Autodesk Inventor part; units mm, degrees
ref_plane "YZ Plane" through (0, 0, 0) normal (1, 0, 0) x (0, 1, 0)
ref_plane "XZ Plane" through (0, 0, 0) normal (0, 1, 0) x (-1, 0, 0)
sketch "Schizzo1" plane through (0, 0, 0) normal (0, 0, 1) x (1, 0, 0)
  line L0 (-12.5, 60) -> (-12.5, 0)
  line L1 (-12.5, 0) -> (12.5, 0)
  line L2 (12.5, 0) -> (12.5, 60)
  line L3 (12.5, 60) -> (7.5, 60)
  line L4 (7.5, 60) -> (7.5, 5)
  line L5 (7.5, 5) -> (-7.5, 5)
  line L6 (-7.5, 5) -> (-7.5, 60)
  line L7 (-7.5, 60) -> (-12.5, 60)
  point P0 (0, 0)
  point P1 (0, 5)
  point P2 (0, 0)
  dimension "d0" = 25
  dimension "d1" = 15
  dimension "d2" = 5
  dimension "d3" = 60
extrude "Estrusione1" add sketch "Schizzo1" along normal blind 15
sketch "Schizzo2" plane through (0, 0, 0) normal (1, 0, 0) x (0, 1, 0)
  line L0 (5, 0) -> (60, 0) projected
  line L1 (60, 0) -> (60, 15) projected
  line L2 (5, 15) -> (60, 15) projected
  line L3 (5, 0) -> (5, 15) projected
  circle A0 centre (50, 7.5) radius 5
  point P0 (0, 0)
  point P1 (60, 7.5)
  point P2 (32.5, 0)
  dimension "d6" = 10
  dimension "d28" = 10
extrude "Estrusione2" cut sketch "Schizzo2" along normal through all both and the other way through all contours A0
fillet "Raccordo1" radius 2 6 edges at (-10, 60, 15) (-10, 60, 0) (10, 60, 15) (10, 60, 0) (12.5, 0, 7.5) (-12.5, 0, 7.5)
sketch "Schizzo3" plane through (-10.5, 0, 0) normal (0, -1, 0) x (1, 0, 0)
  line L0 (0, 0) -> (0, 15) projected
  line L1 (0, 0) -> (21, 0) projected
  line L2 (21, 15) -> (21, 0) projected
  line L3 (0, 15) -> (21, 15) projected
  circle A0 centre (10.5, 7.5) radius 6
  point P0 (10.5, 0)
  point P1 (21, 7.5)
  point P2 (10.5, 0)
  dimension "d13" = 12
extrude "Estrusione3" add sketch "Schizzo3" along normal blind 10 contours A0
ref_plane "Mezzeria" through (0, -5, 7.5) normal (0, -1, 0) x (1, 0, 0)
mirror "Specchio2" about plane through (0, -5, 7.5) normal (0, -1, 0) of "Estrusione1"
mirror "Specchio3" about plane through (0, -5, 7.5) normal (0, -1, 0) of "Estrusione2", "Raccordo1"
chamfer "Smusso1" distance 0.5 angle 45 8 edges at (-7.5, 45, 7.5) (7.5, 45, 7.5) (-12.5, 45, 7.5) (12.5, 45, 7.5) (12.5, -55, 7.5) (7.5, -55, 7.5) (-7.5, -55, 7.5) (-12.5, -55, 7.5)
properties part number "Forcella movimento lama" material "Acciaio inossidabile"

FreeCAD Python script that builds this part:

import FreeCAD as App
import Part
import Sketcher

V = App.Vector
Q = App.Units.Quantity


def edges_at(feature, points):
    """Names of the edges that pass closest to the given points."""
    edges = feature.Shape.Edges
    near = lambda p: min(range(len(edges)), key=lambda i: edges[i].distToShape(Part.Vertex(*p))[0])
    return sorted({f"Edge{near(p) + 1}" for p in points})

doc = App.newDocument("Part")
body = doc.addObject("PartDesign::Body", "Body")

# Sketch on XY plane
sketch1 = doc.addObject("Sketcher::SketchObject", "Sketch")
body.addObject(sketch1)
sketch1.AttachmentSupport = (doc.XY_Plane, [""])
sketch1.MapMode = "FlatFace"
sketch1.addGeometry([
    Part.LineSegment(V(-8, 60, 0), V(-12, 60, 0)),  # 0
    Part.LineSegment(V(-12, 60, 0), V(-12, 0, 0)),  # 1
    Part.LineSegment(V(-12, 0, 0), V(12, 0, 0)),  # 2
    Part.LineSegment(V(12, 0, 0), V(12, 60, 0)),  # 3
    Part.LineSegment(V(12, 60, 0), V(8, 60, 0)),  # 4
    Part.LineSegment(V(8, 60, 0), V(8, 5, 0)),  # 5
    Part.LineSegment(V(8, 5, 0), V(-8, 5, 0)),  # 6
    Part.LineSegment(V(-8, 5, 0), V(-8, 60, 0)),  # 7
], False)
sketch1.addConstraint([
    Sketcher.Constraint("Coincident", 0, 2, 1, 1),
    Sketcher.Constraint("Coincident", 1, 2, 2, 1),
    Sketcher.Constraint("Coincident", 2, 2, 3, 1),
    Sketcher.Constraint("Coincident", 3, 2, 4, 1),
    Sketcher.Constraint("Coincident", 4, 2, 5, 1),
    Sketcher.Constraint("Coincident", 5, 2, 6, 1),
    Sketcher.Constraint("Coincident", 6, 2, 7, 1),
    Sketcher.Constraint("Coincident", 7, 2, 0, 1),
    Sketcher.Constraint("Horizontal", 0),
    Sketcher.Constraint("Vertical", 1),
    Sketcher.Constraint("Horizontal", 2),
    Sketcher.Constraint("Vertical", 3),
    Sketcher.Constraint("Horizontal", 4),
    Sketcher.Constraint("Vertical", 5),
    Sketcher.Constraint("Horizontal", 6),
    Sketcher.Constraint("Vertical", 7),
    Sketcher.Constraint("Symmetric", 1, 2, 2, 2, -1, 1),
    Sketcher.Constraint("Symmetric", 4, 2, 7, 2, -2),
    Sketcher.Constraint("DistanceX", 0, 2, 0, 1, Q("5 mm")),
    Sketcher.Constraint("DistanceX", 2, 1, 2, 2, Q("25 mm")),
    Sketcher.Constraint("DistanceY", 1, 2, 1, 1, Q("60 mm")),
    Sketcher.Constraint("DistanceY", -1, 1, 5, 2, Q("5 mm")),
])
pad1 = doc.addObject("PartDesign::Pad", "Pad")
body.addObject(pad1)
pad1.Profile = sketch1
pad1.Length = 15

# Sketch on YZ plane
sketch2 = doc.addObject("Sketcher::SketchObject", "Sketch001")
body.addObject(sketch2)
sketch2.AttachmentSupport = (doc.YZ_Plane, [""])
sketch2.MapMode = "FlatFace"
sketch2.addGeometry(Part.Circle(V(50, 8, 0), V(0, 0, 1), 5), False)
sketch2.addConstraint([
    Sketcher.Constraint("Diameter", 0, Q("10 mm")),
    Sketcher.Constraint("DistanceX", -1, 1, 0, 3, Q("50 mm")),
    Sketcher.Constraint("DistanceY", -1, 1, 0, 3, Q("7.5 mm")),
])
pocket1 = doc.addObject("PartDesign::Pocket", "Pocket")
body.addObject(pocket1)
pocket1.Profile = sketch2
pocket1.Type = "ThroughAll"
pocket1.Midplane = True
doc.recompute()

fillet = doc.addObject("PartDesign::Fillet", "Fillet")
body.addObject(fillet)
fillet.Base = (pocket1, edges_at(pocket1, [
    (-10, 60, 15),
    (-10, 60, 0),
    (10, 60, 15),
    (10, 60, 0),
    (12.5, 0, 7.5),
    (-12.5, 0, 7.5),
]))
fillet.Radius = 2

# Sketch on XZ plane
sketch3 = doc.addObject("Sketcher::SketchObject", "Sketch002")
body.addObject(sketch3)
sketch3.AttachmentSupport = (doc.XZ_Plane, [""])
sketch3.MapMode = "FlatFace"
sketch3.addGeometry(Part.Circle(V(0, 8, 0), V(0, 0, 1), 6), False)
sketch3.addConstraint([
    Sketcher.Constraint("PointOnObject", 0, 3, -2),
    Sketcher.Constraint("Diameter", 0, Q("12 mm")),
    Sketcher.Constraint("DistanceY", -1, 1, 0, 3, Q("7.5 mm")),
])
pad2 = doc.addObject("PartDesign::Pad", "Pad001")
body.addObject(pad2)
pad2.Profile = sketch3
pad2.Length = 10
doc.recompute()

datumplane = doc.addObject("PartDesign::Plane", "DatumPlane")
body.addObject(datumplane)
datumplane.AttachmentSupport = (doc.XZ_Plane, [""])
datumplane.MapMode = "FlatFace"
datumplane.AttachmentOffset = App.Placement(V(0, 0, 5), App.Rotation())
mirrored = doc.addObject("PartDesign::Mirrored", "Mirrored")
body.addObject(mirrored)
mirrored.Originals = [pad1]
mirrored.MirrorPlane = (datumplane, [""])
body.Tip = mirrored
doc.recompute()

datumplane2 = doc.addObject("PartDesign::Plane", "DatumPlane001")
body.addObject(datumplane2)
datumplane2.AttachmentSupport = (doc.XZ_Plane, [""])
datumplane2.MapMode = "FlatFace"
datumplane2.AttachmentOffset = App.Placement(V(0, 0, 5), App.Rotation())
mirrored2 = doc.addObject("PartDesign::Mirrored", "Mirrored001")
body.addObject(mirrored2)
mirrored2.Originals = [pocket1, fillet]
mirrored2.MirrorPlane = (datumplane2, [""])
body.Tip = mirrored2
doc.recompute()

chamfer = doc.addObject("PartDesign::Chamfer", "Chamfer")
body.addObject(chamfer)
chamfer.Base = (mirrored2, edges_at(mirrored2, [
    (-7.5, 45, 7.5),
    (7.5, 45, 7.5),
    (-12.5, 45, 7.5),
    (12.5, 45, 7.5),
    (12.5, -55, 7.5),
    (7.5, -55, 7.5),
    (-7.5, -55, 7.5),
    (-12.5, -55, 7.5),
]))
chamfer.Size = 0.5

doc.recompute()
